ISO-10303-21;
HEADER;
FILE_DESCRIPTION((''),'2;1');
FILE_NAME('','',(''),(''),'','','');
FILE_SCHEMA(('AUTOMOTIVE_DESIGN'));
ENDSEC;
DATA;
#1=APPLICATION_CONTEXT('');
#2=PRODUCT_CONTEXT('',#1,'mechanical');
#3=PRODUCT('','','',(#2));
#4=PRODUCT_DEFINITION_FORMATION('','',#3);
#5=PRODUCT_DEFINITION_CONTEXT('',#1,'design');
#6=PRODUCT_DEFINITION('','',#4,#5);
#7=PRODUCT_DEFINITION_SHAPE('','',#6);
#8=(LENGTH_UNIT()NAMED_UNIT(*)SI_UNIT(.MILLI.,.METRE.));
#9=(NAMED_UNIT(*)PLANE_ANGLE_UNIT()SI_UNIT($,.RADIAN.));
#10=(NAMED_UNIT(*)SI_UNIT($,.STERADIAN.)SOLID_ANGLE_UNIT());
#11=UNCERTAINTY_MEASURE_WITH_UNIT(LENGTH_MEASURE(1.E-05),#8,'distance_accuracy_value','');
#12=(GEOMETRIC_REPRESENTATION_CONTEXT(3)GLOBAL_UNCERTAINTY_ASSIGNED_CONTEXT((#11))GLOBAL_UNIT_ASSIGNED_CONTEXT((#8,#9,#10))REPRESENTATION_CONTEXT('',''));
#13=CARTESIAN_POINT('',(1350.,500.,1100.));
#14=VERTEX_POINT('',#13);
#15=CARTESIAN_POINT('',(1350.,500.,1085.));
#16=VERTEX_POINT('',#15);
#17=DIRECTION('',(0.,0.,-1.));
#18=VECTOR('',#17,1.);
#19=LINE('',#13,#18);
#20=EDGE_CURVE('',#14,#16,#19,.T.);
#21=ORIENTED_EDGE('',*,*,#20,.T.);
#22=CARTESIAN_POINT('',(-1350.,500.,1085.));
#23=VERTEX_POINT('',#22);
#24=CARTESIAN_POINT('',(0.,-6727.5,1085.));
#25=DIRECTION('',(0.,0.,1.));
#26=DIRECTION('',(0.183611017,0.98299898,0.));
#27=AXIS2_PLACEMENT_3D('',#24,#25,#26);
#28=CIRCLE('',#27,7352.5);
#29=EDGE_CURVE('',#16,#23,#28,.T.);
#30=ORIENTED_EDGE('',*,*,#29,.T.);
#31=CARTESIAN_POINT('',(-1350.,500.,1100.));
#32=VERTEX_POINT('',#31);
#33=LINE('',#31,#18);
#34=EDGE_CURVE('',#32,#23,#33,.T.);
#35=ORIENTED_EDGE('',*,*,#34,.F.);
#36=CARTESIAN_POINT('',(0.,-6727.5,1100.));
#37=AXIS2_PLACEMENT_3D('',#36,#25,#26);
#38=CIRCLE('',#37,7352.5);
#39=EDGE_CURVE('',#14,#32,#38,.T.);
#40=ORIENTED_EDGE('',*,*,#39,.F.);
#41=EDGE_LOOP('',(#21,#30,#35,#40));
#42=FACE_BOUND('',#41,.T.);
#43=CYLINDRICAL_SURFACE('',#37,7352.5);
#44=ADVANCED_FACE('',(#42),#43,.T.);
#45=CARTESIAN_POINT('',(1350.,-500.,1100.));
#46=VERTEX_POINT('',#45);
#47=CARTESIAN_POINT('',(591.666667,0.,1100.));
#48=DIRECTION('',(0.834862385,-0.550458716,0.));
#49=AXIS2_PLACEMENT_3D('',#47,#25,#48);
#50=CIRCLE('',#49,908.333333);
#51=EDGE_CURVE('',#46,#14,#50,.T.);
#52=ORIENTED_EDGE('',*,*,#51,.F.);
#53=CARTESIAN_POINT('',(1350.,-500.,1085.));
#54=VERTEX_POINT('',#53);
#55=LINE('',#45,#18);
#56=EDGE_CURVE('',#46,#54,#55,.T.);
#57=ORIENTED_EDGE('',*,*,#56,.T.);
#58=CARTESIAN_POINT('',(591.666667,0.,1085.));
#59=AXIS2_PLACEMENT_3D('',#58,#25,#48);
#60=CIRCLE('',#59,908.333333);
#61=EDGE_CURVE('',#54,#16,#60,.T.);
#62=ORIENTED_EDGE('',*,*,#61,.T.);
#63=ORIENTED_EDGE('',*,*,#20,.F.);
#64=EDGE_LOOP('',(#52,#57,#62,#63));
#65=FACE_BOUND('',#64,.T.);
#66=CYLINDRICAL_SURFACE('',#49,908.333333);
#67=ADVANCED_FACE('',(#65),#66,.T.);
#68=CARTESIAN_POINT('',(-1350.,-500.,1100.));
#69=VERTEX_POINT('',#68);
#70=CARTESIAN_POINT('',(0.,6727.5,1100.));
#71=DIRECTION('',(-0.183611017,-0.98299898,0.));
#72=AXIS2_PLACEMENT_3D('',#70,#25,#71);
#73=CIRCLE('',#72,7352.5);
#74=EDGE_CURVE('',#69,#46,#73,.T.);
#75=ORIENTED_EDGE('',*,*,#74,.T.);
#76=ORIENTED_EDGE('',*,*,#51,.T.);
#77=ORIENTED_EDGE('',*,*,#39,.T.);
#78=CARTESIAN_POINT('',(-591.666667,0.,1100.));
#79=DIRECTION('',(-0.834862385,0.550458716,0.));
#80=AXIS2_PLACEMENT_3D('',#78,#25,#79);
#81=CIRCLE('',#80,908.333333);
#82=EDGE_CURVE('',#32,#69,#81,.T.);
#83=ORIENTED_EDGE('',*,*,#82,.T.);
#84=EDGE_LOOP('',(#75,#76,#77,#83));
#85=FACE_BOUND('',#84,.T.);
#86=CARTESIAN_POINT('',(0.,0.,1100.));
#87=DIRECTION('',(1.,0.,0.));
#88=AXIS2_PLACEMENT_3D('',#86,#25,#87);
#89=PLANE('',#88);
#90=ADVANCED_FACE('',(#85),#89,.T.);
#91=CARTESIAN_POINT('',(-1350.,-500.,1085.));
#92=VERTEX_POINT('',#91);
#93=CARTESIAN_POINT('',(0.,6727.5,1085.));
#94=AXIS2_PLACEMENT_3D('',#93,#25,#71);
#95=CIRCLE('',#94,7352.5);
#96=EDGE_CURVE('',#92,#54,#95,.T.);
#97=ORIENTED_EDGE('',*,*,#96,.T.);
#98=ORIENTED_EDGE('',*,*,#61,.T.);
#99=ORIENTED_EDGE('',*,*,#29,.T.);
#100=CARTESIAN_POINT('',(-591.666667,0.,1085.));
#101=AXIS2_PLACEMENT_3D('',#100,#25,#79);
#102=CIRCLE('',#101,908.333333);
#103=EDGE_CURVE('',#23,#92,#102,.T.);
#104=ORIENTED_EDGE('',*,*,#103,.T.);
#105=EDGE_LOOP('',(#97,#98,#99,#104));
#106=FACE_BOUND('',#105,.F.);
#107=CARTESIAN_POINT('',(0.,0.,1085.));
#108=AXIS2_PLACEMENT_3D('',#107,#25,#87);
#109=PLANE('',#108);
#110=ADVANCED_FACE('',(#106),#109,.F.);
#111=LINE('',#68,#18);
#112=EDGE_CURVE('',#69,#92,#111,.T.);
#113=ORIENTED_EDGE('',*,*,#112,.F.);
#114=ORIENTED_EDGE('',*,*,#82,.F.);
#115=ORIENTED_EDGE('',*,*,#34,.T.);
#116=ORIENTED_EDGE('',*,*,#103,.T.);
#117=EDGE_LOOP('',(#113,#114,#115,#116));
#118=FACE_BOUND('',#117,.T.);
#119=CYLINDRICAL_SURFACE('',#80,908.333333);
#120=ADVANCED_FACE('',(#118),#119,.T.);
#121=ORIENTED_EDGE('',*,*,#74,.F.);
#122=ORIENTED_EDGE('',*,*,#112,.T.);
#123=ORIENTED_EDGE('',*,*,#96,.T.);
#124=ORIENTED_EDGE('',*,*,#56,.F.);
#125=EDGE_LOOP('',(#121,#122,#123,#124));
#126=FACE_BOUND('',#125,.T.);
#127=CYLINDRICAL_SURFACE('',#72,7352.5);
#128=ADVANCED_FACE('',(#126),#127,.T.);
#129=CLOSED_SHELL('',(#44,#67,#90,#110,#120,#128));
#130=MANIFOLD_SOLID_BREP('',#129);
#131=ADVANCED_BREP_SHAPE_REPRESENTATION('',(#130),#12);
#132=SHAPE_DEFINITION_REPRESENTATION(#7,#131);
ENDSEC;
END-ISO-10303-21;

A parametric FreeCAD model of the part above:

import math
import FreeCAD as App
import Part
import Sketcher

doc = App.newDocument("Part")
body = doc.addObject("PartDesign::Body", "Body")

# Sketch on XY plane
sketch1 = body.newObject("Sketcher::SketchObject", "Sketch")
sketch1.AttachmentSupport = (doc.getObject("XY_Plane"), [""])
sketch1.MapMode = "FlatFace"
sketch1.AttachmentOffset = App.Placement(App.Vector(0, 0, 1100), App.Rotation())
sketch1.addGeometry(Part.ArcOfCircle(Part.Circle(App.Vector(591.666667, 0, 0), App.Vector(0, 0, 1), 908.333333), math.radians(-33.398488), math.radians(33.398488)), False)
sketch1.addGeometry(Part.ArcOfCircle(Part.Circle(App.Vector(0, -6727.5, 0), App.Vector(0, 0, 1), 7352.5), math.radians(79.419838), math.radians(100.580162)), False)
sketch1.addGeometry(Part.ArcOfCircle(Part.Circle(App.Vector(-591.666667, 0, 0), App.Vector(0, 0, 1), 908.333333), math.radians(146.601512), math.radians(213.398488)), False)
sketch1.addGeometry(Part.ArcOfCircle(Part.Circle(App.Vector(0, 6727.5, 0), App.Vector(0, 0, 1), 7352.5), math.radians(-100.580162), math.radians(-79.419838)), False)
sketch1.addConstraint(Sketcher.Constraint("Coincident", 0, 2, 1, 1))
sketch1.addConstraint(Sketcher.Constraint("Coincident", 1, 2, 2, 1))
sketch1.addConstraint(Sketcher.Constraint("Coincident", 2, 2, 3, 1))
sketch1.addConstraint(Sketcher.Constraint("Coincident", 3, 2, 0, 1))
sketch1.addConstraint(Sketcher.Constraint("Equal", 0, 2))
sketch1.addConstraint(Sketcher.Constraint("Equal", 1, 3))
sketch1.addConstraint(Sketcher.Constraint("Symmetric", 0, 3, 2, 3, -1, 1))
sketch1.addConstraint(Sketcher.Constraint("Symmetric", 1, 3, 3, 3, -1, 1))
sketch1.addConstraint(Sketcher.Constraint("PointOnObject", 0, 3, -1))
sketch1.addConstraint(Sketcher.Constraint("PointOnObject", 1, 3, -2))
sketch1.addConstraint(Sketcher.Constraint("Radius", 1, 7352.5))
sketch1.addConstraint(Sketcher.Constraint("DistanceX", -1, 1, 0, 2, 1350.0))
sketch1.addConstraint(Sketcher.Constraint("DistanceY", 1, 3, 3, 3, 13455.0))
sketch1.addConstraint(Sketcher.Constraint("Radius", 0, 908.333333))
pad1 = body.newObject("PartDesign::Pad", "Pad")
pad1.Profile = sketch1
pad1.Length = 15
pad1.Reversed = True

doc.recompute()
